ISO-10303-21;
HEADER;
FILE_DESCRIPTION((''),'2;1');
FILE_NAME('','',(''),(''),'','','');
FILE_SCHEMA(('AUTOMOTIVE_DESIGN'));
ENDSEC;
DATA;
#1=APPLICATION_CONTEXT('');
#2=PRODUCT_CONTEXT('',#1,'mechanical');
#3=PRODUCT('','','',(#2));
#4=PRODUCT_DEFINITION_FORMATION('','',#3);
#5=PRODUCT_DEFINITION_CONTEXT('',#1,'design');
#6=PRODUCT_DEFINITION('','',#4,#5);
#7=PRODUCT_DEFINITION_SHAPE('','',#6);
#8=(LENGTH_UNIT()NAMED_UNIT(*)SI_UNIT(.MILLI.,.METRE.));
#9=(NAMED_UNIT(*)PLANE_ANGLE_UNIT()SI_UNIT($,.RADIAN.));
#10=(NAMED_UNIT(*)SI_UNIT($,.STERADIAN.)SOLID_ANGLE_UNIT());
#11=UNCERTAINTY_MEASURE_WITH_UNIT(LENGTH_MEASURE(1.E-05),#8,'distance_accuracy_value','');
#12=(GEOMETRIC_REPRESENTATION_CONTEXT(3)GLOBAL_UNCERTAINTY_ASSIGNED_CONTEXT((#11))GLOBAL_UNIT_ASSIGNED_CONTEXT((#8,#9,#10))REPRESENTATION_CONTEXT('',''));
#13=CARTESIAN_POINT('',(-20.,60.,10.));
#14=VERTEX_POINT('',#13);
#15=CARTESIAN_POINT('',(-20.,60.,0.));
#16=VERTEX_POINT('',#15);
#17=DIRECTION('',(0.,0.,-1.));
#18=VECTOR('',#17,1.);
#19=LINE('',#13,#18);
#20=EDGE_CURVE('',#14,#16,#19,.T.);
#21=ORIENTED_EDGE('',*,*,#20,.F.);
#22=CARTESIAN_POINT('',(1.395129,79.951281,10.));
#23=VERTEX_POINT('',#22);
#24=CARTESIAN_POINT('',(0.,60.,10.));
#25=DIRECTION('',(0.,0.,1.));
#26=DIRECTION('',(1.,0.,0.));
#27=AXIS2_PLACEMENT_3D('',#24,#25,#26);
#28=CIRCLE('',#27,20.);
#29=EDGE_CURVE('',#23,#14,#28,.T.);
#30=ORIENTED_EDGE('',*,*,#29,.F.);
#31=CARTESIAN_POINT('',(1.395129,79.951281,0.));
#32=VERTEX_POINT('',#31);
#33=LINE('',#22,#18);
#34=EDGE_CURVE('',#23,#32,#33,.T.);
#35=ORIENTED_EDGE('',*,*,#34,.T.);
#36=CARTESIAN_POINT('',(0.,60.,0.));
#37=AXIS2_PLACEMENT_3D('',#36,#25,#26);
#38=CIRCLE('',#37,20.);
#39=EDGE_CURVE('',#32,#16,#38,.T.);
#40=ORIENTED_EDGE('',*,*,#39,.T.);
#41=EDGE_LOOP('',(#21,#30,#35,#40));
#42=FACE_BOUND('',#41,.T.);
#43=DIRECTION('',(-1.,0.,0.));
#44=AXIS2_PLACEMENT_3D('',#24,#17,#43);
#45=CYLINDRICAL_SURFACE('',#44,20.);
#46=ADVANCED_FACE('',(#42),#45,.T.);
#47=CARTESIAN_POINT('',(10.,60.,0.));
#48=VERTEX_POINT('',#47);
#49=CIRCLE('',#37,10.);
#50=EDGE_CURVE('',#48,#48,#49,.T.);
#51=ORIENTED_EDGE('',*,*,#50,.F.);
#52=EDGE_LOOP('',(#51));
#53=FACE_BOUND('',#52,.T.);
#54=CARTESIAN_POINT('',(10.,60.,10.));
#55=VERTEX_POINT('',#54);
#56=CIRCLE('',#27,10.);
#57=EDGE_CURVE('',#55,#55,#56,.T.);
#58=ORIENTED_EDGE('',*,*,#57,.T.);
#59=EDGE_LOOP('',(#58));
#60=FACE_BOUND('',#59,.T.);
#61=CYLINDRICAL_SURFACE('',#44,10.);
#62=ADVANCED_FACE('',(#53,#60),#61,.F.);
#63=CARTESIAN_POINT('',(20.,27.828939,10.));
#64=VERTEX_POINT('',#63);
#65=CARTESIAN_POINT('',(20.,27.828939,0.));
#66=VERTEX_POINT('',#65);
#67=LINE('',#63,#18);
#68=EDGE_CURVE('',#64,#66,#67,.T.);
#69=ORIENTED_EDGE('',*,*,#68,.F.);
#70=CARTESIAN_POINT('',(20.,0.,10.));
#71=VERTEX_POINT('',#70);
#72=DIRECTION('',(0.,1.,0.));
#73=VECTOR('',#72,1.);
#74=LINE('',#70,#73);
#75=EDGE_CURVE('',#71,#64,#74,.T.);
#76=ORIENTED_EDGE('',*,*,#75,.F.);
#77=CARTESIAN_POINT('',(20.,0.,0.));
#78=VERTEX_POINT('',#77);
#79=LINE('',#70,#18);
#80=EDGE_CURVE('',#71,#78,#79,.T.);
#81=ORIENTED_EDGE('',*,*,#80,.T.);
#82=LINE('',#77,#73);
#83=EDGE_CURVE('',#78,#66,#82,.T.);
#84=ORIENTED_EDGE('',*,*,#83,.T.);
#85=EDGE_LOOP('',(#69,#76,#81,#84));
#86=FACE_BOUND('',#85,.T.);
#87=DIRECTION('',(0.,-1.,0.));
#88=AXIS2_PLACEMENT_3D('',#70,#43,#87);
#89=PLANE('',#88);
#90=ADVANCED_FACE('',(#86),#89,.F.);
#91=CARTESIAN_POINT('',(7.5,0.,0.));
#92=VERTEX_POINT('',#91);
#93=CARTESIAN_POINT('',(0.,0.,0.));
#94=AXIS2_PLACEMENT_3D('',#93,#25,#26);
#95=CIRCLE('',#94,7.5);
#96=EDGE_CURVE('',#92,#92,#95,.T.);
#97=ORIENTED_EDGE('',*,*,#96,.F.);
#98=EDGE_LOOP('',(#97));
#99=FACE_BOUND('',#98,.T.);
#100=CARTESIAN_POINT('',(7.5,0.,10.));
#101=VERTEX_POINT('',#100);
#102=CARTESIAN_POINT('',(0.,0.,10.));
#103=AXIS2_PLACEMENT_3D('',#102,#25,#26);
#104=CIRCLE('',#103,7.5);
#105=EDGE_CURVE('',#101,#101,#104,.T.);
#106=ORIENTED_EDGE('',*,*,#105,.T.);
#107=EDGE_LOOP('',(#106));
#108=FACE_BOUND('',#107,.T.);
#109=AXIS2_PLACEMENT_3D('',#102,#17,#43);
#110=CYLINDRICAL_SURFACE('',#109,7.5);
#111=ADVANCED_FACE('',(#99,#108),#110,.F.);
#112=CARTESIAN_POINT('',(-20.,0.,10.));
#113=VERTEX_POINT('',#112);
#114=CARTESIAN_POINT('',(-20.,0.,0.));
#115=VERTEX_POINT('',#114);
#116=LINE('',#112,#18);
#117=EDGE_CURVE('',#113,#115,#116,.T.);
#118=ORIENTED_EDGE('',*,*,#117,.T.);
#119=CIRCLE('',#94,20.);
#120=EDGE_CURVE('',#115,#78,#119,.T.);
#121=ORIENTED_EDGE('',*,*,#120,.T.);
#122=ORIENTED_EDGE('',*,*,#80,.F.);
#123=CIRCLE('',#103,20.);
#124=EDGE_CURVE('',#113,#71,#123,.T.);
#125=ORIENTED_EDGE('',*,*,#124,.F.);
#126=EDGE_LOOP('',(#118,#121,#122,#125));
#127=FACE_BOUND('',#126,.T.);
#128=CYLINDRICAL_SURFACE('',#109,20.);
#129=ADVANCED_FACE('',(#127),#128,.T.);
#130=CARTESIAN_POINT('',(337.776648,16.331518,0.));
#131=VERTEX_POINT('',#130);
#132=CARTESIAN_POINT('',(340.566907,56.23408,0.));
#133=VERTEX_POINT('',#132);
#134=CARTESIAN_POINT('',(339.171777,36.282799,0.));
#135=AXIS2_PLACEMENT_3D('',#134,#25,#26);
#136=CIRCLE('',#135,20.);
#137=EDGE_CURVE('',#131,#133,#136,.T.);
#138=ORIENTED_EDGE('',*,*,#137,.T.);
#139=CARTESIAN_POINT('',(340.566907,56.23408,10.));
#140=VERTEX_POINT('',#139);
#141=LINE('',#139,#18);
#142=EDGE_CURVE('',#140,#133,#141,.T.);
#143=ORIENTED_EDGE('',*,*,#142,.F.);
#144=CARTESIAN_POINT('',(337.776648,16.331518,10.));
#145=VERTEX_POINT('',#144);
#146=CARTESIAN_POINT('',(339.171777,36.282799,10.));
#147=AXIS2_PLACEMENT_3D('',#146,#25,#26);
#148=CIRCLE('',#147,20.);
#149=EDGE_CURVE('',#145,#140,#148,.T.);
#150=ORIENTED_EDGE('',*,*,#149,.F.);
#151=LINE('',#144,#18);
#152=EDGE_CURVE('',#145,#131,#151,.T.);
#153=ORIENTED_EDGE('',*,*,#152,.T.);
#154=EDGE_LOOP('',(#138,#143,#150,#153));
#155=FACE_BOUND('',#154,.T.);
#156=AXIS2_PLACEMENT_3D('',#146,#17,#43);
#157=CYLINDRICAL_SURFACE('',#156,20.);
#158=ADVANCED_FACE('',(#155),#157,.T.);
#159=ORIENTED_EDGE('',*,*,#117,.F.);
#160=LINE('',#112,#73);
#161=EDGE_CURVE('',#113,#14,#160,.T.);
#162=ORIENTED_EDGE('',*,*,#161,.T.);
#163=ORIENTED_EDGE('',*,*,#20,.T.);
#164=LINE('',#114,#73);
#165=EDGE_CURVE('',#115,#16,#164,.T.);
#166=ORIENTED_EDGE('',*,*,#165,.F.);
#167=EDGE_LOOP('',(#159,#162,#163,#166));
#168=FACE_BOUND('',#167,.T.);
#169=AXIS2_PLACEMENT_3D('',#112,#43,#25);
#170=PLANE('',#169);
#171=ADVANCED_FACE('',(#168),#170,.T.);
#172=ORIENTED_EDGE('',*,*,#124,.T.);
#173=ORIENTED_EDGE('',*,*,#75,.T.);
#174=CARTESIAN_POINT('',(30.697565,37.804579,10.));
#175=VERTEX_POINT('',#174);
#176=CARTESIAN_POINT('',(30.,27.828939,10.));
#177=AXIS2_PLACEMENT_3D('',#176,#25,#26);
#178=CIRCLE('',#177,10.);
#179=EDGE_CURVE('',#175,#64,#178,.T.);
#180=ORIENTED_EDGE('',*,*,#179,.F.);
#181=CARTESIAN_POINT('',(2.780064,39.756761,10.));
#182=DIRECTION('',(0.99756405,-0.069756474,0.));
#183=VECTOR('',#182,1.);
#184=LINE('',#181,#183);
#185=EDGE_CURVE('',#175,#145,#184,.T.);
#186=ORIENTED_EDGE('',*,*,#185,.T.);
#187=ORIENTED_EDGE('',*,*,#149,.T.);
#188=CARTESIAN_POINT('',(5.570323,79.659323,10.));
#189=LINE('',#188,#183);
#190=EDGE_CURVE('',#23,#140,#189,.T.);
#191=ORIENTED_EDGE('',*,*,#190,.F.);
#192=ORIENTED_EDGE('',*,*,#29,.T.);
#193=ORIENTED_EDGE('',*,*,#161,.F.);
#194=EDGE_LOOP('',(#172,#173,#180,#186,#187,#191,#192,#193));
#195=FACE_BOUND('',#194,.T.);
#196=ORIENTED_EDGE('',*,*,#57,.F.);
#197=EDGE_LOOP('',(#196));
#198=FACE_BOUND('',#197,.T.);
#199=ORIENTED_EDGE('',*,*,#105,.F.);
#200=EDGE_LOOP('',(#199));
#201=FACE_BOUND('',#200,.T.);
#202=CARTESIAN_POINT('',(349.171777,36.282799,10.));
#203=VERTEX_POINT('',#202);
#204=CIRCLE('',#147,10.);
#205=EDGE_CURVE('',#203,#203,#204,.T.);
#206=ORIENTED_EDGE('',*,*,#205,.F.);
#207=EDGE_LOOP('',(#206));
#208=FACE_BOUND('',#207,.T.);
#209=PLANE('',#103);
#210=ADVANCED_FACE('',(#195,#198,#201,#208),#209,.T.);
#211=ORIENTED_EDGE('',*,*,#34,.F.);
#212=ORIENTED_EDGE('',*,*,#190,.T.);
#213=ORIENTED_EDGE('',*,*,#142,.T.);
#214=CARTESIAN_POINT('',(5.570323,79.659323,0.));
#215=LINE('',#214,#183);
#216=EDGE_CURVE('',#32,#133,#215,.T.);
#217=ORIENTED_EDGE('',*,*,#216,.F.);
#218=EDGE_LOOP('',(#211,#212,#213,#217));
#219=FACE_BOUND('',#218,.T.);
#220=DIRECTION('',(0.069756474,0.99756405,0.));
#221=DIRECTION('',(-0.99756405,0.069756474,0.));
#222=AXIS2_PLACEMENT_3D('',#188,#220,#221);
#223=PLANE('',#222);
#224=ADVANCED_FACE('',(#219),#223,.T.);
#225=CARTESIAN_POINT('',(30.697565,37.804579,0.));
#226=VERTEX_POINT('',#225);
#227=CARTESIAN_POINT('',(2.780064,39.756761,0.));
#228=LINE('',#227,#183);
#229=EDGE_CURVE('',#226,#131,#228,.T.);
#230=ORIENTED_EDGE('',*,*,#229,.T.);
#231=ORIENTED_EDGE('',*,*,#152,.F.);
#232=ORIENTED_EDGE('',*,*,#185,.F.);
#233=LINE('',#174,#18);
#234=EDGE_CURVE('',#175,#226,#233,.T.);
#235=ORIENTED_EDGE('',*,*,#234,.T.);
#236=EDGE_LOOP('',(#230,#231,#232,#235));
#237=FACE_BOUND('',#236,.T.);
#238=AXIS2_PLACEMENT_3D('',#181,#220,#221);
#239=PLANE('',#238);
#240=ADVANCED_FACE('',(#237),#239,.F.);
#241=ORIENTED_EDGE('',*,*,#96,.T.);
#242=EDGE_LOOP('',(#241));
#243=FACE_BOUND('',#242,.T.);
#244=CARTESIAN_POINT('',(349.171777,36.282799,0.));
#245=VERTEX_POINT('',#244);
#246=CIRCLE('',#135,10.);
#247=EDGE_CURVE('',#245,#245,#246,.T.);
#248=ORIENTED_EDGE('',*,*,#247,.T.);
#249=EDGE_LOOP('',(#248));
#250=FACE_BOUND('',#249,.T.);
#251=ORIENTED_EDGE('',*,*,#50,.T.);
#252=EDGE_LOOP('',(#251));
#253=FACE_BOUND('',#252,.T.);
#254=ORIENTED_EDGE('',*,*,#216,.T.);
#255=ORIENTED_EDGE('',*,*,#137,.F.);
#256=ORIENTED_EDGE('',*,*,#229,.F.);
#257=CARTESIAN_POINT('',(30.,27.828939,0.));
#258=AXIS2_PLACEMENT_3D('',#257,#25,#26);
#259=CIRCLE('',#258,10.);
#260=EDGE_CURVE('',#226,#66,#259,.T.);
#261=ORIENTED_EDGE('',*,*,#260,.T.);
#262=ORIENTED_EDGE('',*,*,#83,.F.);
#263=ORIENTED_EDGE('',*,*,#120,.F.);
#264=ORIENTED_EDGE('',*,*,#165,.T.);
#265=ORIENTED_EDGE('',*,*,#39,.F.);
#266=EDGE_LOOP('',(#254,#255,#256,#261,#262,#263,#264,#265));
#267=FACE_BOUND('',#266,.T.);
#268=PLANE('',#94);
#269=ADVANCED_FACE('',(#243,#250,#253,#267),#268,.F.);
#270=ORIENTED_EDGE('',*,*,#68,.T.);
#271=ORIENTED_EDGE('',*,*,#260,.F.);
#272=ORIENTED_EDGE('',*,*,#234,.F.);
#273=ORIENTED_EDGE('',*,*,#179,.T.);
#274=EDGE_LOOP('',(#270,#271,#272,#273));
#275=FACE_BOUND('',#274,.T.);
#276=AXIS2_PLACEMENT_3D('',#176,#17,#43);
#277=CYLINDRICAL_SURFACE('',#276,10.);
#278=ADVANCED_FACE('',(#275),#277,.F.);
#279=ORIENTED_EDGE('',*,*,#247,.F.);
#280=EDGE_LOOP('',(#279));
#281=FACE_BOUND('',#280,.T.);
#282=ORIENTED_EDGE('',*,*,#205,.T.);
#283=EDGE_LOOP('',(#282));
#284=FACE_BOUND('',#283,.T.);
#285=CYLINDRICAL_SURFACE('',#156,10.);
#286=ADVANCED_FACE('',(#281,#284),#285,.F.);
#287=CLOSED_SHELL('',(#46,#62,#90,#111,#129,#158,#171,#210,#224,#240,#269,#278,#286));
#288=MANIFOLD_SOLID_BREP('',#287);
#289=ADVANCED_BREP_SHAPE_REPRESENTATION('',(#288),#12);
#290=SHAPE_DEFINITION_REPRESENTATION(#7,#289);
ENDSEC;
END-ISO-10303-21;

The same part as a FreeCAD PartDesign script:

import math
import FreeCAD as App
import Part
import Sketcher

V = App.Vector
Q = App.Units.Quantity

doc = App.newDocument("Part")
params = doc.addObject("Spreadsheet::Sheet", "Params")
for row, (alias, value) in enumerate([
    ("sketch1_diameter", "15 mm"),
    ("sketch1_diameter2", "20 mm"),
    ("sketch1_radius", "20 mm"),
    ("sketch1_height", "60 mm"),
    ("sketch1_length", "340 mm"),
    ("pad1_length", "10 mm"),
], start=1):
    params.set(f"A{row}", alias)
    params.set(f"B{row}", "=" + value)
    params.setAlias(f"B{row}", alias)

body = doc.addObject("PartDesign::Body", "Body")

# Sketch on XY plane
sketch1 = body.newObject("Sketcher::SketchObject", "Sketch")
sketch1.AttachmentSupport = (doc.getObject("XY_Plane"), [""])
sketch1.MapMode = "FlatFace"
sketch1.addGeometry(Part.LineSegment(V(-20, 60, 0), V(-20, 0, 0)), False)
sketch1.addGeometry(Part.ArcOfCircle(Part.Circle(V(0, 0, 0), V(0, 0, 1), 20), math.radians(180), math.radians(360)), False)
sketch1.addGeometry(Part.LineSegment(V(20, 0, 0), V(20, 27.828939, 0)), False)
sketch1.addGeometry(Part.ArcOfCircle(Part.Circle(V(30, 27.828939, 0), V(0, 0, 1), 10), math.radians(86), math.radians(180)), False)
sketch1.addGeometry(Part.LineSegment(V(30.697565, 37.804579, 0), V(337.776648, 16.331518, 0)), False)
sketch1.addGeometry(Part.ArcOfCircle(Part.Circle(V(339.171777, 36.282799, 0), V(0, 0, 1), 20), math.radians(-94), math.radians(86)), False)
sketch1.addGeometry(Part.LineSegment(V(340.566907, 56.23408, 0), V(1.395129, 79.951281, 0)), False)
sketch1.addGeometry(Part.ArcOfCircle(Part.Circle(V(0, 60, 0), V(0, 0, 1), 20), math.radians(86), math.radians(180)), False)
sketch1.addGeometry(Part.Circle(V(0, 0, 0), V(0, 0, 1), 7.5), False)
sketch1.addGeometry(Part.Circle(V(339.171777, 36.282799, 0), V(0, 0, 1), 10), False)
sketch1.addGeometry(Part.Circle(V(0, 60, 0), V(0, 0, 1), 10), False)
sketch1.addConstraint(Sketcher.Constraint("Tangent", 0, 2, 1, 1))
sketch1.addConstraint(Sketcher.Constraint("Tangent", 1, 2, 2, 1))
sketch1.addConstraint(Sketcher.Constraint("Tangent", 2, 2, 3, 2))
sketch1.addConstraint(Sketcher.Constraint("Tangent", 3, 1, 4, 1))
sketch1.addConstraint(Sketcher.Constraint("Tangent", 4, 2, 5, 1))
sketch1.addConstraint(Sketcher.Constraint("Tangent", 5, 2, 6, 1))
sketch1.addConstraint(Sketcher.Constraint("Tangent", 6, 2, 7, 1))
sketch1.addConstraint(Sketcher.Constraint("Tangent", 7, 2, 0, 1))
sketch1.addConstraint(Sketcher.Constraint("Vertical", 0))
sketch1.addConstraint(Sketcher.Constraint("Vertical", 2))
sketch1.addConstraint(Sketcher.Constraint("Coincident", 1, 3, -1, 1))
sketch1.addConstraint(Sketcher.Constraint("Coincident", 8, 3, -1, 1))
sketch1.addConstraint(Sketcher.Constraint("Coincident", 9, 3, 5, 3))
sketch1.addConstraint(Sketcher.Constraint("Coincident", 10, 3, 7, 3))
sketch1.addConstraint(Sketcher.Constraint("Equal", 1, 5))
sketch1.addConstraint(Sketcher.Constraint("Equal", 5, 7))
sketch1.addConstraint(Sketcher.Constraint("Equal", 3, 9))
sketch1.addConstraint(Sketcher.Constraint("Equal", 9, 10))
sketch1.addConstraint(Sketcher.Constraint("Parallel", 4, 6))
sketch1.addConstraint(Sketcher.Constraint("Diameter", 8, 15.0))
sketch1.addConstraint(Sketcher.Constraint("Diameter", 9, 20.0))
sketch1.addConstraint(Sketcher.Constraint("Radius", 1, 20.0))
sketch1.addConstraint(Sketcher.Constraint("DistanceY", 0, 2, 0, 1, 60.0))
sketch1.addConstraint(Sketcher.Constraint("Angle", 4, Q("-4 deg")))
sketch1.addConstraint(Sketcher.Constraint("Distance", 6, 340.0))
sketch1.setExpression("Constraints[19]", "Params.sketch1_diameter")
sketch1.setExpression("Constraints[20]", "Params.sketch1_diameter2")
sketch1.setExpression("Constraints[21]", "Params.sketch1_radius")
sketch1.setExpression("Constraints[22]", "Params.sketch1_height")
sketch1.setExpression("Constraints[24]", "Params.sketch1_length")
pad1 = body.newObject("PartDesign::Pad", "Pad")
pad1.Profile = sketch1
pad1.setExpression("Length", "Params.pad1_length")

doc.recompute()
